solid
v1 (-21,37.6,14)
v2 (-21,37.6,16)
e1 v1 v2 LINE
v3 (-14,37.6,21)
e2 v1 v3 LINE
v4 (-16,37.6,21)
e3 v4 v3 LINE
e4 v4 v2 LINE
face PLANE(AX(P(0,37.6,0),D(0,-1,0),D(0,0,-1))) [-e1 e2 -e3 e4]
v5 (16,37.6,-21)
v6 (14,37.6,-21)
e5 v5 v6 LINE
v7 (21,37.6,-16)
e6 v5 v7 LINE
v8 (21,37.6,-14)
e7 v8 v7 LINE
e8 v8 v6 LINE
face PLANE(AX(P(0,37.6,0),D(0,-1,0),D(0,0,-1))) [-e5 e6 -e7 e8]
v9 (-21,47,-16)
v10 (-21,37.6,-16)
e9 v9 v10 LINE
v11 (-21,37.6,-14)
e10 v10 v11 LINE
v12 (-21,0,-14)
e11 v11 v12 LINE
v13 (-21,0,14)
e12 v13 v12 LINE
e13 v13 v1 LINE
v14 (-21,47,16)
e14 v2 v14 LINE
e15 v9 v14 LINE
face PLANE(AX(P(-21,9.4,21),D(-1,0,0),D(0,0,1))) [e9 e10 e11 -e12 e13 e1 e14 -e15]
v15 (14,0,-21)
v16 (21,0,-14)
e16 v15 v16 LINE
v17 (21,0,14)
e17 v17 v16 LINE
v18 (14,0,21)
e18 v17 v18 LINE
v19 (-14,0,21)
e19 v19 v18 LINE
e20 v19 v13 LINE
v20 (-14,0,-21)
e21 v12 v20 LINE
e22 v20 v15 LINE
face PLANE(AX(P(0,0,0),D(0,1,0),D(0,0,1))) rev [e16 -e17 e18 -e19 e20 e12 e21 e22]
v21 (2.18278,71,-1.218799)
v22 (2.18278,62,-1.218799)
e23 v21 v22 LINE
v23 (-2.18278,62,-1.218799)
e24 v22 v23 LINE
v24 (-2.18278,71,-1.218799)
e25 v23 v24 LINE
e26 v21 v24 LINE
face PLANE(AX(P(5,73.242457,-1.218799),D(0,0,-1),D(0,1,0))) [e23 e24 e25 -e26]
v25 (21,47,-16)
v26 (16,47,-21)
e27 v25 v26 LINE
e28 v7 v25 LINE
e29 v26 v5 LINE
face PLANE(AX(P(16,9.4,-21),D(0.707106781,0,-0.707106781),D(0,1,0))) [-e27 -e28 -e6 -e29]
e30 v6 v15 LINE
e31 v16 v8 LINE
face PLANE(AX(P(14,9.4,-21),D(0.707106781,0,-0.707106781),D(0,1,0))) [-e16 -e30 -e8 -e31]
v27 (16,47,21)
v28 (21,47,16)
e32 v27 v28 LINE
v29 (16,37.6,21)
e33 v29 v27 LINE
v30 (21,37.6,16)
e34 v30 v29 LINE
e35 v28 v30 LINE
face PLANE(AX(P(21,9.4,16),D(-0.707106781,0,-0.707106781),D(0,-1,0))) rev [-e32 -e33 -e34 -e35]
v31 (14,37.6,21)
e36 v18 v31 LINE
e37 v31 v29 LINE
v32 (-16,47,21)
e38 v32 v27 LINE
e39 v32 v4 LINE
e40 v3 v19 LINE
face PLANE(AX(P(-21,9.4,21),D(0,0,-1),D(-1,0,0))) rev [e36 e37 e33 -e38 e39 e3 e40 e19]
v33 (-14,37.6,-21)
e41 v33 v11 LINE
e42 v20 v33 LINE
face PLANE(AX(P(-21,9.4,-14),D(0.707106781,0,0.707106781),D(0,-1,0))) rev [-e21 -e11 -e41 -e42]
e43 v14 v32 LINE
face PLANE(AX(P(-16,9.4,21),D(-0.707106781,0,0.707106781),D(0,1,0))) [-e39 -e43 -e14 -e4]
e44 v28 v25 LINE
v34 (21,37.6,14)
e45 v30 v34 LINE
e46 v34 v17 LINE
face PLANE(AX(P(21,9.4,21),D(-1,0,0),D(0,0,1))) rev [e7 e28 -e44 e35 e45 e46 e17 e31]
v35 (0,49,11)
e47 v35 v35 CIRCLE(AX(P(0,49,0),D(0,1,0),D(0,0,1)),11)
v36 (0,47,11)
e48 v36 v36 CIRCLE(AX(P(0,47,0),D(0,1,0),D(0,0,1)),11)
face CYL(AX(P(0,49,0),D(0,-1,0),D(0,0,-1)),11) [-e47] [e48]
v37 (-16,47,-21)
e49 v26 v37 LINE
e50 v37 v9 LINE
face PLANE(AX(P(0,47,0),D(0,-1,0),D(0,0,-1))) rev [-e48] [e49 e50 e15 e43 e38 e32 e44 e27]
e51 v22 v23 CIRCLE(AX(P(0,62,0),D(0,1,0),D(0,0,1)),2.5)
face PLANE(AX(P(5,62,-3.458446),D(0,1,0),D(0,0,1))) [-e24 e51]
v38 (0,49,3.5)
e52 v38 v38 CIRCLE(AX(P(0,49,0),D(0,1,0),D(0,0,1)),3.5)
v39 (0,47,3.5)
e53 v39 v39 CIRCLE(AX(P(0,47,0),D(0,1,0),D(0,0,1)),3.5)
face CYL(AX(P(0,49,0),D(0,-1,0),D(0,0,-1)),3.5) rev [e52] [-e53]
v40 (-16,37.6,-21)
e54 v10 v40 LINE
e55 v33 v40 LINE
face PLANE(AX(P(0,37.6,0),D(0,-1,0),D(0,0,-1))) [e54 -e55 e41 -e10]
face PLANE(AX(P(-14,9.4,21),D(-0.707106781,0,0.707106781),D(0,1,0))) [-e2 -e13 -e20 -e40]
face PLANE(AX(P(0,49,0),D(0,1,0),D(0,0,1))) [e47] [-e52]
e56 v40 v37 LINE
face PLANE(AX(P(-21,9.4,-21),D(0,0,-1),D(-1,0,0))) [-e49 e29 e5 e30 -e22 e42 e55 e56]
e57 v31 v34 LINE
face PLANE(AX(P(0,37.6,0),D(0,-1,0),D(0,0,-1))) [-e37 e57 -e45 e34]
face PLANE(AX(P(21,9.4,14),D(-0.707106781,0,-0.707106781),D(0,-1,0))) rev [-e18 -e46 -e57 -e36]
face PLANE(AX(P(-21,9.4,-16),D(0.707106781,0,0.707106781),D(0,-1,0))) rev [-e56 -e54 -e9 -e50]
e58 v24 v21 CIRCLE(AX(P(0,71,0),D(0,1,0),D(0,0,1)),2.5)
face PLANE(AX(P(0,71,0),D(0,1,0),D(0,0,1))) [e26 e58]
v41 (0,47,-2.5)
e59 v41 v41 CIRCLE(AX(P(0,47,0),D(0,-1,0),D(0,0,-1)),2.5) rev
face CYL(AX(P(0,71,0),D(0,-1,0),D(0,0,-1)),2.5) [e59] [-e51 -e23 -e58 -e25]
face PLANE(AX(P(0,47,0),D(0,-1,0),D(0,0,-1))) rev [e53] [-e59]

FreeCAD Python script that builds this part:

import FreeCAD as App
import Part
import Sketcher

V = App.Vector
Q = App.Units.Quantity


def edges_at(feature, points):
    """Names of the edges that pass closest to the given points."""
    edges = feature.Shape.Edges
    near = lambda p: min(range(len(edges)), key=lambda i: edges[i].distToShape(Part.Vertex(*p))[0])
    return sorted({f"Edge{near(p) + 1}" for p in points})

doc = App.newDocument("Part")
params = doc.addObject("Spreadsheet::Sheet", "Params")
for row, (alias, value) in enumerate([
    ("sketch1_width", "42 mm"),
    ("pad1_length", "9.4 mm"),
    ("chamfer_size", "5 mm"),
    ("sketch2_width", "42 mm"),
    ("pad2_length", "28.2 mm"),
    ("chamfer2_size", "7 mm"),
    ("sketch3_width", "42 mm"),
    ("pad3_length", "9.4 mm"),
    ("chamfer3_size", "5 mm"),
    ("sketch4_diameter", "22 mm"),
    ("sketch4_diameter2", "7 mm"),
    ("pad4_length", "2 mm"),
    ("sketch5_diameter", "5 mm"),
    ("pad5_length", "24 mm"),
], start=1):
    params.set(f"A{row}", alias)
    params.set(f"B{row}", "=" + value)
    params.setAlias(f"B{row}", alias)

body = doc.addObject("PartDesign::Body", "Body")

# Sketch on XZ plane
sketch1 = body.newObject("Sketcher::SketchObject", "Sketch")
sketch1.AttachmentSupport = (doc.getObject("XZ_Plane"), [""])
sketch1.MapMode = "FlatFace"
sketch1.addGeometry([
    Part.LineSegment(V(-21, -21, 0), V(-21, 21, 0)),
    Part.LineSegment(V(-21, 21, 0), V(21, 21, 0)),
    Part.LineSegment(V(21, 21, 0), V(21, -21, 0)),
    Part.LineSegment(V(21, -21, 0), V(-21, -21, 0)),
], False)
sketch1.addConstraint([
    Sketcher.Constraint("Coincident", 0, 2, 1, 1),
    Sketcher.Constraint("Coincident", 1, 2, 2, 1),
    Sketcher.Constraint("Coincident", 2, 2, 3, 1),
    Sketcher.Constraint("Coincident", 3, 2, 0, 1),
    Sketcher.Constraint("Vertical", 0),
    Sketcher.Constraint("Horizontal", 1),
    Sketcher.Constraint("Vertical", 2),
    Sketcher.Constraint("Horizontal", 3),
    Sketcher.Constraint("Symmetric", 0, 2, 2, 2, -1, 1),
    Sketcher.Constraint("Equal", 3, 0),
    Sketcher.Constraint("DistanceX", 1, 1, 1, 2, Q("42 mm")),
])
sketch1.setExpression("Constraints[10]", "Params.sketch1_width")
pad1 = body.newObject("PartDesign::Pad", "Pad")
pad1.Profile = sketch1
pad1.setExpression("Length", "Params.pad1_length")
pad1.Reversed = True
doc.recompute()

chamfer = body.newObject("PartDesign::Chamfer", "Chamfer")
chamfer.Base = (pad1, edges_at(pad1, [
    (-21, 4.7, 21),
    (-21, 4.7, -21),
    (21, 4.7, -21),
    (21, 4.7, 21),
]))
chamfer.setExpression("Size", "Params.chamfer_size")

# Sketch on XZ plane
sketch2 = body.newObject("Sketcher::SketchObject", "Sketch001")
sketch2.AttachmentSupport = (doc.getObject("XZ_Plane"), [""])
sketch2.MapMode = "FlatFace"
sketch2.AttachmentOffset = App.Placement(V(0, 0, -9.4), App.Rotation())
sketch2.addGeometry([
    Part.LineSegment(V(-21, -21, 0), V(-21, 21, 0)),
    Part.LineSegment(V(-21, 21, 0), V(21, 21, 0)),
    Part.LineSegment(V(21, 21, 0), V(21, -21, 0)),
    Part.LineSegment(V(21, -21, 0), V(-21, -21, 0)),
], False)
sketch2.addConstraint([
    Sketcher.Constraint("Coincident", 0, 2, 1, 1),
    Sketcher.Constraint("Coincident", 1, 2, 2, 1),
    Sketcher.Constraint("Coincident", 2, 2, 3, 1),
    Sketcher.Constraint("Coincident", 3, 2, 0, 1),
    Sketcher.Constraint("Vertical", 0),
    Sketcher.Constraint("Horizontal", 1),
    Sketcher.Constraint("Vertical", 2),
    Sketcher.Constraint("Horizontal", 3),
    Sketcher.Constraint("Symmetric", 0, 2, 2, 2, -1, 1),
    Sketcher.Constraint("Equal", 3, 0),
    Sketcher.Constraint("DistanceX", 1, 1, 1, 2, Q("42 mm")),
])
sketch2.setExpression("Constraints[10]", "Params.sketch2_width")
pad2 = body.newObject("PartDesign::Pad", "Pad001")
pad2.Profile = sketch2
pad2.setExpression("Length", "Params.pad2_length")
pad2.Reversed = True
doc.recompute()

chamfer2 = body.newObject("PartDesign::Chamfer", "Chamfer001")
chamfer2.Base = (pad2, edges_at(pad2, [
    (21, 23.5, 21),
    (-21, 23.5, 21),
    (-21, 23.5, -21),
    (21, 23.5, -21),
]))
chamfer2.setExpression("Size", "Params.chamfer2_size")

# Sketch on XZ plane
sketch3 = body.newObject("Sketcher::SketchObject", "Sketch002")
sketch3.AttachmentSupport = (doc.getObject("XZ_Plane"), [""])
sketch3.MapMode = "FlatFace"
sketch3.AttachmentOffset = App.Placement(V(0, 0, -37.6), App.Rotation())
sketch3.addGeometry([
    Part.LineSegment(V(-21, -21, 0), V(-21, 21, 0)),
    Part.LineSegment(V(-21, 21, 0), V(21, 21, 0)),
    Part.LineSegment(V(21, 21, 0), V(21, -21, 0)),
    Part.LineSegment(V(21, -21, 0), V(-21, -21, 0)),
], False)
sketch3.addConstraint([
    Sketcher.Constraint("Coincident", 0, 2, 1, 1),
    Sketcher.Constraint("Coincident", 1, 2, 2, 1),
    Sketcher.Constraint("Coincident", 2, 2, 3, 1),
    Sketcher.Constraint("Coincident", 3, 2, 0, 1),
    Sketcher.Constraint("Vertical", 0),
    Sketcher.Constraint("Horizontal", 1),
    Sketcher.Constraint("Vertical", 2),
    Sketcher.Constraint("Horizontal", 3),
    Sketcher.Constraint("Symmetric", 0, 2, 2, 2, -1, 1),
    Sketcher.Constraint("Equal", 3, 0),
    Sketcher.Constraint("DistanceX", 1, 1, 1, 2, Q("42 mm")),
])
sketch3.setExpression("Constraints[10]", "Params.sketch3_width")
pad3 = body.newObject("PartDesign::Pad", "Pad002")
pad3.Profile = sketch3
pad3.setExpression("Length", "Params.pad3_length")
pad3.Reversed = True
doc.recompute()

chamfer3 = body.newObject("PartDesign::Chamfer", "Chamfer002")
chamfer3.Base = (pad3, edges_at(pad3, [
    (21, 42.3, 21),
    (21, 42.3, -21),
    (-21, 42.3, -21),
    (-21, 42.3, 21),
]))
chamfer3.setExpression("Size", "Params.chamfer3_size")

# Sketch on XZ plane
sketch4 = body.newObject("Sketcher::SketchObject", "Sketch003")
sketch4.AttachmentSupport = (doc.getObject("XZ_Plane"), [""])
sketch4.MapMode = "FlatFace"
sketch4.AttachmentOffset = App.Placement(V(0, 0, -47), App.Rotation())
sketch4.addGeometry([
    Part.Circle(V(0, 0, 0), V(0, 0, 1), 11),
    Part.Circle(V(0, 0, 0), V(0, 0, 1), 3.5),
], False)
sketch4.addConstraint([
    Sketcher.Constraint("Coincident", 0, 3, -1, 1),
    Sketcher.Constraint("Coincident", 1, 3, -1, 1),
    Sketcher.Constraint("Diameter", 0, Q("22 mm")),
    Sketcher.Constraint("Diameter", 1, Q("7 mm")),
])
sketch4.setExpression("Constraints[2]", "Params.sketch4_diameter")
sketch4.setExpression("Constraints[3]", "Params.sketch4_diameter2")
pad4 = body.newObject("PartDesign::Pad", "Pad003")
pad4.Profile = sketch4
pad4.setExpression("Length", "Params.pad4_length")
pad4.Reversed = True

# Sketch on XZ plane
sketch5 = body.newObject("Sketcher::SketchObject", "Sketch004")
sketch5.AttachmentSupport = (doc.getObject("XZ_Plane"), [""])
sketch5.MapMode = "FlatFace"
sketch5.AttachmentOffset = App.Placement(V(0, 0, -47), App.Rotation())
sketch5.addGeometry(Part.Circle(V(0, 0, 0), V(0, 0, 1), 2.5), False)
sketch5.addConstraint([
    Sketcher.Constraint("Coincident", 0, 3, -1, 1),
    Sketcher.Constraint("Diameter", 0, Q("5 mm")),
])
sketch5.setExpression("Constraints[1]", "Params.sketch5_diameter")
pad5 = body.newObject("PartDesign::Pad", "Pad004")
pad5.Profile = sketch5
pad5.setExpression("Length", "Params.pad5_length")
pad5.Reversed = True

# Sketch on YZ plane
sketch6 = body.newObject("Sketcher::SketchObject", "Sketch005")
sketch6.AttachmentSupport = (doc.getObject("YZ_Plane"), [""])
sketch6.MapMode = "FlatFace"
sketch6.addGeometry([
    Part.LineSegment(V(73.242457, -1.218799, 0), V(62, -1.218799, 0)),
    Part.LineSegment(V(62, -1.218799, 0), V(62, -3.458446, 0)),
    Part.LineSegment(V(62, -3.458446, 0), V(73.242457, -3.458446, 0)),
    Part.LineSegment(V(73.242457, -3.458446, 0), V(73.242457, -1.218799, 0)),
], False)
sketch6.addConstraint([
    Sketcher.Constraint("Coincident", 0, 2, 1, 1),
    Sketcher.Constraint("Coincident", 1, 2, 2, 1),
    Sketcher.Constraint("Coincident", 2, 2, 3, 1),
    Sketcher.Constraint("Coincident", 3, 2, 0, 1),
    Sketcher.Constraint("Horizontal", 0),
    Sketcher.Constraint("Vertical", 1),
    Sketcher.Constraint("Horizontal", 2),
    Sketcher.Constraint("Vertical", 3),
    Sketcher.Constraint("DistanceX", -1, 1, 0, 2, Q("62 mm")),
    Sketcher.Constraint("DistanceY", 0, 2, -1, 1, Q("1.218799 mm")),
    Sketcher.Constraint("DistanceX", 0, 2, 0, 1, Q("11.242457 mm")),
    Sketcher.Constraint("DistanceY", 1, 2, 1, 1, Q("2.239648 mm")),
])
pocket1 = body.newObject("PartDesign::Pocket", "Pocket")
pocket1.Profile = sketch6
pocket1.Type = "ThroughAll"
pocket1.Midplane = True

doc.recompute()
